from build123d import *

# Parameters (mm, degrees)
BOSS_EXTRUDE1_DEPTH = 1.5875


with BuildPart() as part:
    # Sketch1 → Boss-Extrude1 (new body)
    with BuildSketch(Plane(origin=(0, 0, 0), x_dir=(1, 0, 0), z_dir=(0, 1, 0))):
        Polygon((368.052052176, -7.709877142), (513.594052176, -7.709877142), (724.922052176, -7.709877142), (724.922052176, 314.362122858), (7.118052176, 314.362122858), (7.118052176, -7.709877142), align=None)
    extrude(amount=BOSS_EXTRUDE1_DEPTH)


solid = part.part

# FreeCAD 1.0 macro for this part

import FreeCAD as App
import Part
import Sketcher
from FreeCAD import Vector
Q = App.Units.Quantity


def add_polygon(sketch, points):
    """Adds a closed chain of lines whose ends are joined by coincident constraints."""
    first, n = sketch.GeometryCount, len(points)
    for a, b in zip(points, points[1:] + points[:1]):
        sketch.addGeometry(Part.LineSegment(App.Vector(*a, 0), App.Vector(*b, 0)), False)
    for i in range(n):
        sketch.addConstraint(Sketcher.Constraint("Coincident", first + i, 2, first + (i + 1) % n, 1))

doc = App.newDocument("Part")
params = doc.addObject("Spreadsheet::Sheet", "Params")
for row, (alias, value) in enumerate([
    ("sketch1_width", "28.26 in"),
    ("sketch1_height", "12.68 in"),
    ("pad1_length", "0.0625 in"),
], start=1):
    params.set(f"A{row}", alias)
    params.set(f"B{row}", "=" + value)
    params.setAlias(f"B{row}", alias)

body = doc.addObject("PartDesign::Body", "Body")

sketch1 = body.newObject("Sketcher::SketchObject", "Sketch")
sketch1.AttachmentSupport = (doc.getObject("XZ_Plane"), [""])
sketch1.MapMode = "FlatFace"
add_polygon(sketch1, [(725, 8), (725, -314), (7, -314), (7, 8)])
sketch1.addConstraint([
    Sketcher.Constraint("Vertical", 0),
    Sketcher.Constraint("Horizontal", 1),
    Sketcher.Constraint("Vertical", 2),
    Sketcher.Constraint("Horizontal", 3),
    Sketcher.Constraint("DistanceX", 1, 2, 1, 1, Q("28.26 in")),
    Sketcher.Constraint("DistanceY", 0, 2, 0, 1, Q("12.68 in")),
    Sketcher.Constraint("DistanceX", -1, 1, 0, 2, Q("724.922052 mm")),
    Sketcher.Constraint("DistanceY", 0, 2, -1, 1, Q("314.362123 mm")),
])
sketch1.setExpression("Constraints[8]", "Params.sketch1_width")
sketch1.setExpression("Constraints[9]", "Params.sketch1_height")
pad1 = body.newObject("PartDesign::Pad", "Pad")
pad1.Profile = sketch1
pad1.setExpression("Length", "Params.pad1_length")
pad1.Reversed = True

doc.recompute()
